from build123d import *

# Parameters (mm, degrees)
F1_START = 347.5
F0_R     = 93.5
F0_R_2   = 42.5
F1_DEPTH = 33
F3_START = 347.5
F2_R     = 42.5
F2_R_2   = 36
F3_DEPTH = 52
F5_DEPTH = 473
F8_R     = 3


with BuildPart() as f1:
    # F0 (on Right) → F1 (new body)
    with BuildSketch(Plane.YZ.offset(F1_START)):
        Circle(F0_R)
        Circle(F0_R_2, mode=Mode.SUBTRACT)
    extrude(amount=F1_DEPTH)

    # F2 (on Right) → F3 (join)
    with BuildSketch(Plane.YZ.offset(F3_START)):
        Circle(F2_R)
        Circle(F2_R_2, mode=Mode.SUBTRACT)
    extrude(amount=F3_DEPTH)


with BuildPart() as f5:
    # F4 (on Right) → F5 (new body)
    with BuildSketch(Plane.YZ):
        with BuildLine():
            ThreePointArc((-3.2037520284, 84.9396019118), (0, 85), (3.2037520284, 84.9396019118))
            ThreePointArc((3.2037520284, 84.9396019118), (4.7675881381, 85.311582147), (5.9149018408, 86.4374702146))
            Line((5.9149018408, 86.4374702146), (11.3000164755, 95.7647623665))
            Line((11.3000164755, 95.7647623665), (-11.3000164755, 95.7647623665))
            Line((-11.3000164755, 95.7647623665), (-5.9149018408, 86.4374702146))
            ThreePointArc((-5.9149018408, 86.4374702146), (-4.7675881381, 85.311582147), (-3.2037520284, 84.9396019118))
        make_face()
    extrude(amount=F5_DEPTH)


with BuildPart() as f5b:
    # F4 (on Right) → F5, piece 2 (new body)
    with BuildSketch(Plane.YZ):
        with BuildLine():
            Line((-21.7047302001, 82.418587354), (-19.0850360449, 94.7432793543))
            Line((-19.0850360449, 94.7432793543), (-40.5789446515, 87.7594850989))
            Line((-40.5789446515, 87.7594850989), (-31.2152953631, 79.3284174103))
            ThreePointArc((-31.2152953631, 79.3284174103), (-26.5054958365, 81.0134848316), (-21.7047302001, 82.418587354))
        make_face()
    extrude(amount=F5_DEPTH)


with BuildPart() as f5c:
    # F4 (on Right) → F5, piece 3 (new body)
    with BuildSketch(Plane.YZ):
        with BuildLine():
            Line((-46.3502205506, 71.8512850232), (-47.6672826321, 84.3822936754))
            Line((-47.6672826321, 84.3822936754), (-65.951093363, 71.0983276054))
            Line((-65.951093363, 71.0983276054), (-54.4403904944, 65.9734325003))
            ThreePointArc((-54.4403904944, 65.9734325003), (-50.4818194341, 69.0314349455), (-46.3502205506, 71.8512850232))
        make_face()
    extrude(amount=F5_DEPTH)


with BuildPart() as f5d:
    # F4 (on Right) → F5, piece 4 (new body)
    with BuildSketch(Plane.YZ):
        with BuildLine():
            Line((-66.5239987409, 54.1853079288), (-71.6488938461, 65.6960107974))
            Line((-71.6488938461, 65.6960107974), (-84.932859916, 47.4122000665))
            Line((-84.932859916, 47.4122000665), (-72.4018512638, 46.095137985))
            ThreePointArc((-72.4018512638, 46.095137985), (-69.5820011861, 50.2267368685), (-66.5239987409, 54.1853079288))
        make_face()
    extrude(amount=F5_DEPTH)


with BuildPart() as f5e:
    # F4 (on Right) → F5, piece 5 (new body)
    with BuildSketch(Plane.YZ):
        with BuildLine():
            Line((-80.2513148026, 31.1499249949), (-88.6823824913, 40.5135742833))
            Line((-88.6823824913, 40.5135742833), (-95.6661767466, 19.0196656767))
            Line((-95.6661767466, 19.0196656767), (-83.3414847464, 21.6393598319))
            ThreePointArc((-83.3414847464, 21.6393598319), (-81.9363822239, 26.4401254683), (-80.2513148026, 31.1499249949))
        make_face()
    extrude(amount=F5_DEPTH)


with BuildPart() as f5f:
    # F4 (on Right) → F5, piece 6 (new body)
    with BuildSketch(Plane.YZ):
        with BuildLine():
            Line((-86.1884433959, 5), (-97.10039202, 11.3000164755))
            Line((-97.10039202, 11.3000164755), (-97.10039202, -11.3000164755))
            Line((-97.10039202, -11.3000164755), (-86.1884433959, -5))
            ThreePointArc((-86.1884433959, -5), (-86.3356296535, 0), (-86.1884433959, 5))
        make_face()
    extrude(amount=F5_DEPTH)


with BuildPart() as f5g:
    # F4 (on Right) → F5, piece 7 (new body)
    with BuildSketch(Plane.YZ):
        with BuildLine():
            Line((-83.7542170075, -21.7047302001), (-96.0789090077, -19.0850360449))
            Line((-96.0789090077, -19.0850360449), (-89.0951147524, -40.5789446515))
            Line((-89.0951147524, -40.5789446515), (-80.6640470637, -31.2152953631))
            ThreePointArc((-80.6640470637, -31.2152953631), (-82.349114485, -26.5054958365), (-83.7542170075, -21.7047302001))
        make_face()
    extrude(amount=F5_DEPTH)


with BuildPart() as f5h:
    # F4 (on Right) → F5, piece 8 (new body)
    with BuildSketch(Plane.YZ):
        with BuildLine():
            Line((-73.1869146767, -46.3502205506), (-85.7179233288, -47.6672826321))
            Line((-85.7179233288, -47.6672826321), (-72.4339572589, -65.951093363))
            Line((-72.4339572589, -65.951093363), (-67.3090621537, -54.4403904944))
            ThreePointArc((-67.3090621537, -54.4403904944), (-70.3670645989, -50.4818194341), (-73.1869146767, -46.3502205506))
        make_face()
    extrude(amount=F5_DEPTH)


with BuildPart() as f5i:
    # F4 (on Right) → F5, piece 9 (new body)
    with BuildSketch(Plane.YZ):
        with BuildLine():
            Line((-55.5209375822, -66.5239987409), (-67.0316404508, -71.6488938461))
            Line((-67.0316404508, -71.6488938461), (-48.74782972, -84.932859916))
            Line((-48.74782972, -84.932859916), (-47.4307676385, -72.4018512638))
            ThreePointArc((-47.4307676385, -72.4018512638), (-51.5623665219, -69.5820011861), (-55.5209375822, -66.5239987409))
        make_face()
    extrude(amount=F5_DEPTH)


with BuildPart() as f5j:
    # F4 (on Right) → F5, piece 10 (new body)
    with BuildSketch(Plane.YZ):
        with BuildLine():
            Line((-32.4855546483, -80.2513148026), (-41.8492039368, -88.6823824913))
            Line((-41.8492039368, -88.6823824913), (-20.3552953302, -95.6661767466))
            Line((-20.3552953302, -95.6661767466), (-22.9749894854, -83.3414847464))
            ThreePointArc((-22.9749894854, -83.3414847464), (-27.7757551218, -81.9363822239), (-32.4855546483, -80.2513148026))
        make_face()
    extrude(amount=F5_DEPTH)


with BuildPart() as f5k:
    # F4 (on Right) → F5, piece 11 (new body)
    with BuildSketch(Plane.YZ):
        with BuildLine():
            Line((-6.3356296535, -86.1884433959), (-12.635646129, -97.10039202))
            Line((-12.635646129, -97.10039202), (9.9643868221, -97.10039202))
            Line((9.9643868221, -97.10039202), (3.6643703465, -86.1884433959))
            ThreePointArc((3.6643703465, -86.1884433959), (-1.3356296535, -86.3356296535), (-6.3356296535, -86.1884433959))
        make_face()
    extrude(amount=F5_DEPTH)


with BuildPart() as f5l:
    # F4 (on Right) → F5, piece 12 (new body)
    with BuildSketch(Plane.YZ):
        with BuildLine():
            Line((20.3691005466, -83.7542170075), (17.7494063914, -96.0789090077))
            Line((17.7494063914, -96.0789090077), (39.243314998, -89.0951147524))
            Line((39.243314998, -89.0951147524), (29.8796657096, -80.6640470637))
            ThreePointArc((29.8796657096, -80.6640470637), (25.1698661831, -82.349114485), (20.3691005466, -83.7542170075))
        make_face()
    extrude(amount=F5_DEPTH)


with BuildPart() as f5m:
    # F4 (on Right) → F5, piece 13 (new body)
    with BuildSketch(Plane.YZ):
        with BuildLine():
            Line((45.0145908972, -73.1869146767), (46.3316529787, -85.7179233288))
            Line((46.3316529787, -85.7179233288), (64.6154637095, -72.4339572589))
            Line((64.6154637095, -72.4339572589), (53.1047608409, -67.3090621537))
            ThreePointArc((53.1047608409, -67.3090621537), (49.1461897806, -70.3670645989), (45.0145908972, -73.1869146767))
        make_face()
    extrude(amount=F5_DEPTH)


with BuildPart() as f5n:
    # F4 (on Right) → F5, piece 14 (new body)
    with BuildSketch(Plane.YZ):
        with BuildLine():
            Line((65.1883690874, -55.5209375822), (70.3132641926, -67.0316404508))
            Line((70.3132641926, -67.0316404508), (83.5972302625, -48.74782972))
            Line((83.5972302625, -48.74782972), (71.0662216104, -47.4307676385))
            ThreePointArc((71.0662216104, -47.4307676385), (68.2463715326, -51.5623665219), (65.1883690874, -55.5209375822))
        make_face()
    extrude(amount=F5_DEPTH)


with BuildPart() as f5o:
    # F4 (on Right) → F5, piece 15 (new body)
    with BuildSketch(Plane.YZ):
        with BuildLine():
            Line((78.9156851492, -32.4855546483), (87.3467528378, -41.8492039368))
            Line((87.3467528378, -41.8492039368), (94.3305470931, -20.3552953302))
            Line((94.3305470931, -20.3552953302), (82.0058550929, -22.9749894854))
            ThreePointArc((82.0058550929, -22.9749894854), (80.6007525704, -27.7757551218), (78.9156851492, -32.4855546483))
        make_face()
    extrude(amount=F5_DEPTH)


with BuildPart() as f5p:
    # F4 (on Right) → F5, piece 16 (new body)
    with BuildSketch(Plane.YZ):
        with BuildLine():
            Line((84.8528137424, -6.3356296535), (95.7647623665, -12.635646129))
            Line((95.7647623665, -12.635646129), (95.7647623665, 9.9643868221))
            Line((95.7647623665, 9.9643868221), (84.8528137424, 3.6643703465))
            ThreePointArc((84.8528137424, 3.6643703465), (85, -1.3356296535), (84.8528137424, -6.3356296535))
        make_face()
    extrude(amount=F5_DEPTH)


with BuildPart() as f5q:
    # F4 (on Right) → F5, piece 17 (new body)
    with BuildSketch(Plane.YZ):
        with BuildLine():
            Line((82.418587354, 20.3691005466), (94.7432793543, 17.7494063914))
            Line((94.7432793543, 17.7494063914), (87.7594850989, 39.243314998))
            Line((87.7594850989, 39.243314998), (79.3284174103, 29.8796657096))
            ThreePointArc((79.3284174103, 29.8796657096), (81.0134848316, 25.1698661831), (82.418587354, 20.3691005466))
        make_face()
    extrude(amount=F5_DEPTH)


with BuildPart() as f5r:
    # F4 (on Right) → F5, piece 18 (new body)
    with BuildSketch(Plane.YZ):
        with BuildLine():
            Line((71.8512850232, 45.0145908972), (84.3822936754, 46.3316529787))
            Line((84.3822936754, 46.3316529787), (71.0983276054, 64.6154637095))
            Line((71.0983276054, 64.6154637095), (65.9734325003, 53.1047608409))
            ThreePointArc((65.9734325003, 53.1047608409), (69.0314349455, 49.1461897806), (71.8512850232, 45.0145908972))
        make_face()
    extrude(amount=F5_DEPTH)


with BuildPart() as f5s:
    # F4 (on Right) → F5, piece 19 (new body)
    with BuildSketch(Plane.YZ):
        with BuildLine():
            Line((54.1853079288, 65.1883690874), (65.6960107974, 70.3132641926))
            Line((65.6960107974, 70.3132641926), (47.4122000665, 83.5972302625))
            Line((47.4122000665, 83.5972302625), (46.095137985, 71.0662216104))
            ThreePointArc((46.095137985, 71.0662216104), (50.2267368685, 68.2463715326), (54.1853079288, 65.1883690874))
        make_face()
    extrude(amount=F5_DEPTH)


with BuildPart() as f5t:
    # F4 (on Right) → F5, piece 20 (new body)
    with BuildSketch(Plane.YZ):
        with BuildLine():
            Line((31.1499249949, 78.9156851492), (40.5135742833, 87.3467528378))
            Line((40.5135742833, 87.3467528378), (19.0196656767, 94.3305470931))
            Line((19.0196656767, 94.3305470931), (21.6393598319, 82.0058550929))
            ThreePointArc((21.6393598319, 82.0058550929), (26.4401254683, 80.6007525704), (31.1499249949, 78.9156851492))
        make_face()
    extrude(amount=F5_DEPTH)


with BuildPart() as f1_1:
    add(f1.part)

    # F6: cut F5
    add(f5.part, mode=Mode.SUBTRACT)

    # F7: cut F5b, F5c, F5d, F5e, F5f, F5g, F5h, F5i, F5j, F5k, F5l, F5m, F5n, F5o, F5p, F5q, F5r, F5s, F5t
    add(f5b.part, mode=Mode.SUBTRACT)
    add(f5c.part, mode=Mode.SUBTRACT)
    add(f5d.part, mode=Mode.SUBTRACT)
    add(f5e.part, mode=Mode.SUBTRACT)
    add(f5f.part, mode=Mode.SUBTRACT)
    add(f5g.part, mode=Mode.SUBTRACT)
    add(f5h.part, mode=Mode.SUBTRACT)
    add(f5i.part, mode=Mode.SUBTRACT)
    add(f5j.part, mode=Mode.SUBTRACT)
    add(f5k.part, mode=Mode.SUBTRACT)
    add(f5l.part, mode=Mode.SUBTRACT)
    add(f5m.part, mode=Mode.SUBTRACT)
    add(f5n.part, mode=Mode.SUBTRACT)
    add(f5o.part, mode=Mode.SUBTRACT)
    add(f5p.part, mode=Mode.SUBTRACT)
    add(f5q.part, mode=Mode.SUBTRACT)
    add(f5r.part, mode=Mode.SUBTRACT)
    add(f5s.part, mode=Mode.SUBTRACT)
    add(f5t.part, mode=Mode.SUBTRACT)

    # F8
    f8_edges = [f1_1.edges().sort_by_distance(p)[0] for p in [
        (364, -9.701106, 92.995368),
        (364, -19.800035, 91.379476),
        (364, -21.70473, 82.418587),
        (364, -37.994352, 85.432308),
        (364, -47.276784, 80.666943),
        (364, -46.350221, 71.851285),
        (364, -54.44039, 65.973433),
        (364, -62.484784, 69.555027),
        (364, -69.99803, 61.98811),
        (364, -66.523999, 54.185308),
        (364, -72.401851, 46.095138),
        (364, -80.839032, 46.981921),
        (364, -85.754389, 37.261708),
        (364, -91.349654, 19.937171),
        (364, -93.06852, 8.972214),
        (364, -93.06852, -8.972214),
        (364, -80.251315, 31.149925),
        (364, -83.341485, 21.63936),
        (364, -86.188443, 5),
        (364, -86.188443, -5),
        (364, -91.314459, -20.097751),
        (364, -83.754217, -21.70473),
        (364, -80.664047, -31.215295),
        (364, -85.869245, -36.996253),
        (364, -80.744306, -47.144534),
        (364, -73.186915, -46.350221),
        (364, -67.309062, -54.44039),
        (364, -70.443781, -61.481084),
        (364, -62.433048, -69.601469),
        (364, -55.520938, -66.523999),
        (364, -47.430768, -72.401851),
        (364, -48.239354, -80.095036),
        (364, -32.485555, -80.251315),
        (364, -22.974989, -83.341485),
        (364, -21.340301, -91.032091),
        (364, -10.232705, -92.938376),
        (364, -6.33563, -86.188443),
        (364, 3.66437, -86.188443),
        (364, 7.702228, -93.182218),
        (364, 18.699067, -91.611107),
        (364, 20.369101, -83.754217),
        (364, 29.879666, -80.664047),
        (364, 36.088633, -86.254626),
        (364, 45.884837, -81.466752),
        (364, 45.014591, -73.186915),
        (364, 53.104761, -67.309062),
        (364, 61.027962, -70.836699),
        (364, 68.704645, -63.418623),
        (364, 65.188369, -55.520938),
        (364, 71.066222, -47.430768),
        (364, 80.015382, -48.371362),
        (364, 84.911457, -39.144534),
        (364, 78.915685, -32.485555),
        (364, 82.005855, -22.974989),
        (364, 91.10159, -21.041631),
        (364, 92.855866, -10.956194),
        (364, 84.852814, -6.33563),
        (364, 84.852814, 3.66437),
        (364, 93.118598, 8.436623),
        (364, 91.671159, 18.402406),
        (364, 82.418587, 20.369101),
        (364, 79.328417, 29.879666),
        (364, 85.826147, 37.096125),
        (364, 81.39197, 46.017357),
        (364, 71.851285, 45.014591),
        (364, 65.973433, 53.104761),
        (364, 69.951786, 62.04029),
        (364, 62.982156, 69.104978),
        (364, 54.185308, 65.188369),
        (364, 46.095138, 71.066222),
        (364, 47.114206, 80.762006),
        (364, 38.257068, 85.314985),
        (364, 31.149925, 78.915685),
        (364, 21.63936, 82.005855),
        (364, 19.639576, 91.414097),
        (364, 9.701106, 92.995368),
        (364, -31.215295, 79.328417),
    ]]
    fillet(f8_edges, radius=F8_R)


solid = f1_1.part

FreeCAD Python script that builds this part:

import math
import FreeCAD as App
import Part
import Sketcher
Q = App.Units.Quantity


def edges_at(feature, points):
    """Names of the edges that pass closest to the given points."""
    edges = feature.Shape.Edges
    near = lambda p: min(range(len(edges)), key=lambda i: edges[i].distToShape(Part.Vertex(*p))[0])
    return sorted({f"Edge{near(p) + 1}" for p in points})

doc = App.newDocument("Part")
params = doc.addObject("Spreadsheet::Sheet", "Params")
for row, (alias, value) in enumerate([
    ("sketch1_diameter", "187 mm"),
    ("sketch1_diameter2", "85 mm"),
    ("pad1_length", "33 mm"),
    ("sketch2_diameter", "85 mm"),
    ("sketch2_diameter2", "72 mm"),
    ("pad2_length", "52 mm"),
    ("sketch3_radius", "85 mm"),
    ("sketch3_radius2", "3 mm"),
    ("pad3_length", "473 mm"),
    ("sketch4_radius", "85 mm"),
    ("pad4_length", "473 mm"),
    ("sketch5_radius", "85 mm"),
    ("pad5_length", "473 mm"),
    ("sketch6_radius", "85 mm"),
    ("pad6_length", "473 mm"),
    ("sketch7_radius", "85 mm"),
    ("pad7_length", "473 mm"),
    ("sketch8_radius", "85 mm"),
    ("pad8_length", "473 mm"),
    ("sketch9_radius", "85 mm"),
    ("pad9_length", "473 mm"),
    ("sketch10_radius", "85 mm"),
    ("pad10_length", "473 mm"),
    ("sketch11_radius", "85 mm"),
    ("pad11_length", "473 mm"),
    ("sketch12_radius", "85 mm"),
    ("pad12_length", "473 mm"),
    ("sketch13_radius", "85 mm"),
    ("pad13_length", "473 mm"),
    ("sketch14_radius", "85 mm"),
    ("pad14_length", "473 mm"),
    ("sketch15_radius", "85 mm"),
    ("pad15_length", "473 mm"),
    ("sketch16_radius", "85 mm"),
    ("pad16_length", "473 mm"),
    ("sketch17_radius", "85 mm"),
    ("pad17_length", "473 mm"),
    ("sketch18_radius", "85 mm"),
    ("pad18_length", "473 mm"),
    ("sketch19_radius", "85 mm"),
    ("pad19_length", "473 mm"),
    ("sketch20_radius", "85 mm"),
    ("pad20_length", "473 mm"),
    ("sketch21_radius", "85 mm"),
    ("pad21_length", "473 mm"),
    ("sketch22_radius", "85 mm"),
    ("pad22_length", "473 mm"),
    ("fillet_radius", "3 mm"),
], start=1):
    params.set(f"A{row}", alias)
    params.set(f"B{row}", "=" + value)
    params.setAlias(f"B{row}", alias)

body = doc.addObject("PartDesign::Body", "Body")

# Sketch on YZ plane
sketch1 = body.newObject("Sketcher::SketchObject", "Sketch")
sketch1.AttachmentSupport = (doc.getObject("YZ_Plane"), [""])
sketch1.MapMode = "FlatFace"
sketch1.AttachmentOffset = App.Placement(App.Vector(0, 0, 347.5), App.Rotation())
sketch1.addGeometry([
    Part.Circle(App.Vector(0, 0, 0), App.Vector(0, 0, 1), 93.5),
    Part.Circle(App.Vector(0, 0, 0), App.Vector(0, 0, 1), 42.5),
], False)
sketch1.addConstraint([
    Sketcher.Constraint("Coincident", 0, 3, -1, 1),
    Sketcher.Constraint("Coincident", 1, 3, -1, 1),
    Sketcher.Constraint("Diameter", 0, 187.0),
    Sketcher.Constraint("Diameter", 1, 85.0),
])
sketch1.setExpression("Constraints[2]", "Params.sketch1_diameter")
sketch1.setExpression("Constraints[3]", "Params.sketch1_diameter2")
pad1 = body.newObject("PartDesign::Pad", "Pad")
pad1.Profile = sketch1
pad1.setExpression("Length", "Params.pad1_length")

# Sketch on YZ plane
sketch2 = body.newObject("Sketcher::SketchObject", "Sketch001")
sketch2.AttachmentSupport = (doc.getObject("YZ_Plane"), [""])
sketch2.MapMode = "FlatFace"
sketch2.AttachmentOffset = App.Placement(App.Vector(0, 0, 347.5), App.Rotation())
sketch2.addGeometry([
    Part.Circle(App.Vector(0, 0, 0), App.Vector(0, 0, 1), 42.5),
    Part.Circle(App.Vector(0, 0, 0), App.Vector(0, 0, 1), 36),
], False)
sketch2.addConstraint([
    Sketcher.Constraint("Coincident", 0, 3, -1, 1),
    Sketcher.Constraint("Coincident", 1, 3, -1, 1),
    Sketcher.Constraint("Diameter", 0, 85.0),
    Sketcher.Constraint("Diameter", 1, 72.0),
])
sketch2.setExpression("Constraints[2]", "Params.sketch2_diameter")
sketch2.setExpression("Constraints[3]", "Params.sketch2_diameter2")
pad2 = body.newObject("PartDesign::Pad", "Pad001")
pad2.Profile = sketch2
pad2.setExpression("Length", "Params.pad2_length")
body2 = doc.addObject("PartDesign::Body", "Body001")

# Sketch on YZ plane
sketch3 = body2.newObject("Sketcher::SketchObject", "Sketch002")
sketch3.AttachmentSupport = (doc.getObject("YZ_Plane001"), [""])
sketch3.MapMode = "FlatFace"
sketch3.addGeometry([
    Part.ArcOfCircle(Part.Circle(App.Vector(0, 0, 0), App.Vector(0, 0, 1), 85), math.radians(87.839942), math.radians(92.160058)),  # 0
    Part.ArcOfCircle(Part.Circle(App.Vector(3.316826, 87.93747, 0), App.Vector(0, 0, 1), 3), math.radians(-92.160058), math.radians(-30)),  # 1
    Part.LineSegment(App.Vector(5.914902, 86.43747, 0), App.Vector(11.300016, 95.764762, 0)),  # 2
    Part.LineSegment(App.Vector(11.300016, 95.764762, 0), App.Vector(-11.300016, 95.764762, 0)),  # 3
    Part.LineSegment(App.Vector(-11.300016, 95.764762, 0), App.Vector(-5.914902, 86.43747, 0)),  # 4
    Part.ArcOfCircle(Part.Circle(App.Vector(-3.316826, 87.93747, 0), App.Vector(0, 0, 1), 3), math.radians(-150), math.radians(-87.839942)),  # 5
], False)
sketch3.addConstraint([
    Sketcher.Constraint("Tangent", 0, 1, 1, 1),
    Sketcher.Constraint("Tangent", 1, 2, 2, 1),
    Sketcher.Constraint("Coincident", 2, 2, 3, 1),
    Sketcher.Constraint("Coincident", 3, 2, 4, 1),
    Sketcher.Constraint("Tangent", 4, 2, 5, 1),
    Sketcher.Constraint("Tangent", 5, 2, 0, 2),
    Sketcher.Constraint("Horizontal", 3),
    Sketcher.Constraint("Coincident", 0, 3, -1, 1),
    Sketcher.Constraint("Equal", 1, 5),
    Sketcher.Constraint("Symmetric", 1, 2, 4, 2, -2),
    Sketcher.Constraint("Radius", 0, 85.0),
    Sketcher.Constraint("Radius", 1, 3.0),
    Sketcher.Constraint("Angle", 2, Q("60 deg")),
    Sketcher.Constraint("DistanceY", -1, 1, 0, 1, 84.939602),
    Sketcher.Constraint("Distance", 2, 10.770229),
])
sketch3.setExpression("Constraints[10]", "Params.sketch3_radius")
sketch3.setExpression("Constraints[11]", "Params.sketch3_radius2")
pad3 = body2.newObject("PartDesign::Pad", "Pad002")
pad3.Profile = sketch3
pad3.setExpression("Length", "Params.pad3_length")
body3 = doc.addObject("PartDesign::Body", "Body002")

# Sketch on YZ plane
sketch4 = body3.newObject("Sketcher::SketchObject", "Sketch003")
sketch4.AttachmentSupport = (doc.getObject("YZ_Plane002"), [""])
sketch4.MapMode = "FlatFace"
sketch4.addGeometry([
    Part.LineSegment(App.Vector(-21.70473, 82.418587, 0), App.Vector(-19.085036, 94.743279, 0)),
    Part.LineSegment(App.Vector(-19.085036, 94.743279, 0), App.Vector(-40.578945, 87.759485, 0)),
    Part.LineSegment(App.Vector(-40.578945, 87.759485, 0), App.Vector(-31.215295, 79.328417, 0)),
    Part.ArcOfCircle(Part.Circle(App.Vector(-0.239051, 0.173681, 0), App.Vector(0, 0, 1), 85), math.radians(104.627713), math.radians(111.372287)),
], False)
sketch4.addConstraint([
    Sketcher.Constraint("Coincident", 0, 2, 1, 1),
    Sketcher.Constraint("Coincident", 1, 2, 2, 1),
    Sketcher.Constraint("Coincident", 2, 2, 3, 2),
    Sketcher.Constraint("Coincident", 3, 1, 0, 1),
    Sketcher.Constraint("Equal", 0, 2),
    Sketcher.Constraint("Radius", 3, 85.0),
    Sketcher.Constraint("Angle", 0, Q("78 deg")),
    Sketcher.Constraint("Angle", 1, Q("-162 deg")),
    Sketcher.Constraint("Angle", 2, Q("-42 deg")),
    Sketcher.Constraint("DistanceY", 3, 3, 0, 2, 94.569598),
    Sketcher.Constraint("DistanceX", 3, 3, -1, 1, 0.239051),
    Sketcher.Constraint("DistanceY", -1, 1, 3, 3, 0.173681),
    Sketcher.Constraint("DistanceX", 3, 1, -1, 1, 21.70473),
])
sketch4.setExpression("Constraints[5]", "Params.sketch4_radius")
pad4 = body3.newObject("PartDesign::Pad", "Pad003")
pad4.Profile = sketch4
pad4.setExpression("Length", "Params.pad4_length")
body4 = doc.addObject("PartDesign::Body", "Body003")

# Sketch on YZ plane
sketch5 = body4.newObject("Sketcher::SketchObject", "Sketch004")
sketch5.AttachmentSupport = (doc.getObject("YZ_Plane003"), [""])
sketch5.MapMode = "FlatFace"
sketch5.addGeometry([
    Part.LineSegment(App.Vector(-46.350221, 71.851285, 0), App.Vector(-47.667283, 84.382294, 0)),
    Part.LineSegment(App.Vector(-47.667283, 84.382294, 0), App.Vector(-65.951093, 71.098328, 0)),
    Part.LineSegment(App.Vector(-65.951093, 71.098328, 0), App.Vector(-54.44039, 65.973433, 0)),
    Part.ArcOfCircle(Part.Circle(App.Vector(-0.520073, 0.26499, 0), App.Vector(0, 0, 1), 85), math.radians(122.627713), math.radians(129.372287)),
], False)
sketch5.addConstraint([
    Sketcher.Constraint("Coincident", 0, 2, 1, 1),
    Sketcher.Constraint("Coincident", 1, 2, 2, 1),
    Sketcher.Constraint("Coincident", 2, 2, 3, 2),
    Sketcher.Constraint("Coincident", 3, 1, 0, 1),
    Sketcher.Constraint("Equal", 0, 2),
    Sketcher.Constraint("Radius", 3, 85.0),
    Sketcher.Constraint("Angle", 0, Q("96 deg")),
    Sketcher.Constraint("Angle", 1, Q("-144 deg")),
    Sketcher.Constraint("Angle", 2, Q("-24 deg")),
    Sketcher.Constraint("DistanceY", -1, 1, 3, 3, 0.26499),
    Sketcher.Constraint("DistanceX", 2, 2, -1, 1, 54.44039),
    Sketcher.Constraint("DistanceX", 3, 1, -1, 1, 46.350221),
    Sketcher.Constraint("DistanceX", 0, 2, 3, 3, 47.14721),
])
sketch5.setExpression("Constraints[5]", "Params.sketch5_radius")
pad5 = body4.newObject("PartDesign::Pad", "Pad004")
pad5.Profile = sketch5
pad5.setExpression("Length", "Params.pad5_length")
body5 = doc.addObject("PartDesign::Body", "Body004")

# Sketch on YZ plane
sketch6 = body5.newObject("Sketcher::SketchObject", "Sketch005")
sketch6.AttachmentSupport = (doc.getObject("YZ_Plane004"), [""])
sketch6.MapMode = "FlatFace"
sketch6.addGeometry([
    Part.LineSegment(App.Vector(-66.523999, 54.185308, 0), App.Vector(-71.648894, 65.696011, 0)),
    Part.LineSegment(App.Vector(-71.648894, 65.696011, 0), App.Vector(-84.93286, 47.4122, 0)),
    Part.LineSegment(App.Vector(-84.93286, 47.4122, 0), App.Vector(-72.401851, 46.095138, 0)),
    Part.ArcOfCircle(Part.Circle(App.Vector(-0.815557, 0.26499, 0), App.Vector(0, 0, 1), 85), math.radians(140.627713), math.radians(147.372287)),
], False)
sketch6.addConstraint([
    Sketcher.Constraint("Coincident", 0, 2, 1, 1),
    Sketcher.Constraint("Coincident", 1, 2, 2, 1),
    Sketcher.Constraint("Coincident", 2, 2, 3, 2),
    Sketcher.Constraint("Coincident", 3, 1, 0, 1),
    Sketcher.Constraint("Equal", 0, 2),
    Sketcher.Constraint("Radius", 3, 85.0),
    Sketcher.Constraint("Angle", 0, Q("114 deg")),
    Sketcher.Constraint("Angle", 1, Q("-126 deg")),
    Sketcher.Constraint("Angle", 2, Q("-6 deg")),
    Sketcher.Constraint("DistanceX", 3, 1, -1, 1, 66.523999),
    Sketcher.Constraint("DistanceY", -1, 1, 1, 2, 47.4122),
    Sketcher.Constraint("DistanceY", -1, 1, 3, 3, 0.26499),
    Sketcher.Constraint("DistanceY", -1, 1, 0, 2, 65.696011),
])
sketch6.setExpression("Constraints[5]", "Params.sketch6_radius")
pad6 = body5.newObject("PartDesign::Pad", "Pad005")
pad6.Profile = sketch6
pad6.setExpression("Length", "Params.pad6_length")
body6 = doc.addObject("PartDesign::Body", "Body005")

# Sketch on YZ plane
sketch7 = body6.newObject("Sketcher::SketchObject", "Sketch006")
sketch7.AttachmentSupport = (doc.getObject("YZ_Plane005"), [""])
sketch7.MapMode = "FlatFace"
sketch7.addGeometry([
    Part.LineSegment(App.Vector(-80.251315, 31.149925, 0), App.Vector(-88.682382, 40.513574, 0)),
    Part.LineSegment(App.Vector(-88.682382, 40.513574, 0), App.Vector(-95.666177, 19.019666, 0)),
    Part.LineSegment(App.Vector(-95.666177, 19.019666, 0), App.Vector(-83.341485, 21.63936, 0)),
    Part.ArcOfCircle(Part.Circle(App.Vector(-1.096578, 0.173681, 0), App.Vector(0, 0, 1), 85), math.radians(158.627713), math.radians(165.372287)),
], False)
sketch7.addConstraint([
    Sketcher.Constraint("Coincident", 0, 2, 1, 1),
    Sketcher.Constraint("Coincident", 1, 2, 2, 1),
    Sketcher.Constraint("Coincident", 2, 2, 3, 2),
    Sketcher.Constraint("Coincident", 3, 1, 0, 1),
    Sketcher.Constraint("Equal", 0, 2),
    Sketcher.Constraint("Radius", 3, 85.0),
    Sketcher.Constraint("Angle", 0, Q("132 deg")),
    Sketcher.Constraint("Angle", 1, Q("-108 deg")),
    Sketcher.Constraint("Angle", 2, Q("12 deg")),
    Sketcher.Constraint("DistanceX", 1, 2, 3, 3, 94.569598),
    Sketcher.Constraint("DistanceX", 3, 3, -1, 1, 1.096578),
    Sketcher.Constraint("DistanceY", -1, 1, 3, 3, 0.173681),
    Sketcher.Constraint("DistanceY", -1, 1, 2, 2, 21.63936),
])
sketch7.setExpression("Constraints[5]", "Params.sketch7_radius")
pad7 = body6.newObject("PartDesign::Pad", "Pad006")
pad7.Profile = sketch7
pad7.setExpression("Length", "Params.pad7_length")
body7 = doc.addObject("PartDesign::Body", "Body006")

# Sketch on YZ plane
sketch8 = body7.newObject("Sketcher::SketchObject", "Sketch007")
sketch8.AttachmentSupport = (doc.getObject("YZ_Plane006"), [""])
sketch8.MapMode = "FlatFace"
sketch8.addGeometry([
    Part.LineSegment(App.Vector(-86.188443, 5, 0), App.Vector(-97.100392, 11.300016, 0)),
    Part.LineSegment(App.Vector(-97.100392, 11.300016, 0), App.Vector(-97.100392, -11.300016, 0)),
    Part.LineSegment(App.Vector(-97.100392, -11.300016, 0), App.Vector(-86.188443, -5, 0)),
    Part.ArcOfCircle(Part.Circle(App.Vector(-1.33563, 0, 0), App.Vector(0, 0, 1), 85), math.radians(176.627713), math.radians(183.372287)),
], False)
sketch8.addConstraint([
    Sketcher.Constraint("Coincident", 0, 2, 1, 1),
    Sketcher.Constraint("Coincident", 1, 2, 2, 1),
    Sketcher.Constraint("Coincident", 2, 2, 3, 2),
    Sketcher.Constraint("Coincident", 3, 1, 0, 1),
    Sketcher.Constraint("Vertical", 1),
    Sketcher.Constraint("Symmetric", 2, 2, 3, 1, -1),
    Sketcher.Constraint("Equal", 0, 2),
    Sketcher.Constraint("Radius", 3, 85.0),
    Sketcher.Constraint("Angle", 0, Q("150 deg")),
    Sketcher.Constraint("DistanceY", 2, 2, -1, 1, 5.0),
    Sketcher.Constraint("DistanceY", 1, 2, 1, 1, 22.600033),
    Sketcher.Constraint("DistanceX", 3, 3, -1, 1, 1.33563),
])
sketch8.setExpression("Constraints[7]", "Params.sketch8_radius")
pad8 = body7.newObject("PartDesign::Pad", "Pad007")
pad8.Profile = sketch8
pad8.setExpression("Length", "Params.pad8_length")
body8 = doc.addObject("PartDesign::Body", "Body007")

# Sketch on YZ plane
sketch9 = body8.newObject("Sketcher::SketchObject", "Sketch008")
sketch9.AttachmentSupport = (doc.getObject("YZ_Plane007"), [""])
sketch9.MapMode = "FlatFace"
sketch9.addGeometry([
    Part.LineSegment(App.Vector(-83.754217, -21.70473, 0), App.Vector(-96.078909, -19.085036, 0)),
    Part.LineSegment(App.Vector(-96.078909, -19.085036, 0), App.Vector(-89.095115, -40.578945, 0)),
    Part.LineSegment(App.Vector(-89.095115, -40.578945, 0), App.Vector(-80.664047, -31.215295, 0)),
    Part.ArcOfCircle(Part.Circle(App.Vector(-1.509311, -0.239051, 0), App.Vector(0, 0, 1), 85), math.radians(-165.372287), math.radians(-158.627713)),
], False)
sketch9.addConstraint([
    Sketcher.Constraint("Coincident", 0, 2, 1, 1),
    Sketcher.Constraint("Coincident", 1, 2, 2, 1),
    Sketcher.Constraint("Coincident", 2, 2, 3, 2),
    Sketcher.Constraint("Coincident", 3, 1, 0, 1),
    Sketcher.Constraint("Equal", 0, 2),
    Sketcher.Constraint("Radius", 3, 85.0),
    Sketcher.Constraint("Angle", 0, Q("168 deg")),
    Sketcher.Constraint("Angle", 1, Q("-72 deg")),
    Sketcher.Constraint("Angle", 2, Q("48 deg")),
    Sketcher.Constraint("DistanceX", 0, 2, 3, 3, 94.569598),
    Sketcher.Constraint("DistanceX", 3, 3, -1, 1, 1.509311),
    Sketcher.Constraint("DistanceY", 3, 3, -1, 1, 0.239051),
    Sketcher.Constraint("DistanceY", 3, 1, -1, 1, 21.70473),
])
sketch9.setExpression("Constraints[5]", "Params.sketch9_radius")
pad9 = body8.newObject("PartDesign::Pad", "Pad008")
pad9.Profile = sketch9
pad9.setExpression("Length", "Params.pad9_length")
body9 = doc.addObject("PartDesign::Body", "Body008")

# Sketch on YZ plane
sketch10 = body9.newObject("Sketcher::SketchObject", "Sketch009")
sketch10.AttachmentSupport = (doc.getObject("YZ_Plane008"), [""])
sketch10.MapMode = "FlatFace"
sketch10.addGeometry([
    Part.LineSegment(App.Vector(-73.186915, -46.350221, 0), App.Vector(-85.717923, -47.667283, 0)),
    Part.LineSegment(App.Vector(-85.717923, -47.667283, 0), App.Vector(-72.433957, -65.951093, 0)),
    Part.LineSegment(App.Vector(-72.433957, -65.951093, 0), App.Vector(-67.309062, -54.44039, 0)),
    Part.ArcOfCircle(Part.Circle(App.Vector(-1.60062, -0.520073, 0), App.Vector(0, 0, 1), 85), math.radians(-147.372287), math.radians(-140.627713)),
], False)
sketch10.addConstraint([
    Sketcher.Constraint("Coincident", 0, 2, 1, 1),
    Sketcher.Constraint("Coincident", 1, 2, 2, 1),
    Sketcher.Constraint("Coincident", 2, 2, 3, 2),
    Sketcher.Constraint("Coincident", 3, 1, 0, 1),
    Sketcher.Constraint("Equal", 0, 2),
    Sketcher.Constraint("Radius", 3, 85.0),
    Sketcher.Constraint("Angle", 0, Q("-174 deg")),
    Sketcher.Constraint("Angle", 1, Q("-54 deg")),
    Sketcher.Constraint("Angle", 2, Q("66 deg")),
    Sketcher.Constraint("DistanceX", 3, 3, -1, 1, 1.60062),
    Sketcher.Constraint("DistanceY", 2, 2, -1, 1, 54.44039),
    Sketcher.Constraint("DistanceY", 3, 1, -1, 1, 46.350221),
    Sketcher.Constraint("DistanceY", 0, 2, 3, 3, 47.14721),
])
sketch10.setExpression("Constraints[5]", "Params.sketch10_radius")
pad10 = body9.newObject("PartDesign::Pad", "Pad009")
pad10.Profile = sketch10
pad10.setExpression("Length", "Params.pad10_length")
body10 = doc.addObject("PartDesign::Body", "Body009")

# Sketch on YZ plane
sketch11 = body10.newObject("Sketcher::SketchObject", "Sketch010")
sketch11.AttachmentSupport = (doc.getObject("YZ_Plane009"), [""])
sketch11.MapMode = "FlatFace"
sketch11.addGeometry([
    Part.LineSegment(App.Vector(-55.520938, -66.523999, 0), App.Vector(-67.03164, -71.648894, 0)),
    Part.LineSegment(App.Vector(-67.03164, -71.648894, 0), App.Vector(-48.74783, -84.93286, 0)),
    Part.LineSegment(App.Vector(-48.74783, -84.93286, 0), App.Vector(-47.430768, -72.401851, 0)),
    Part.ArcOfCircle(Part.Circle(App.Vector(-1.60062, -0.815557, 0), App.Vector(0, 0, 1), 85), math.radians(-129.372287), math.radians(-122.627713)),
], False)
sketch11.addConstraint([
    Sketcher.Constraint("Coincident", 0, 2, 1, 1),
    Sketcher.Constraint("Coincident", 1, 2, 2, 1),
    Sketcher.Constraint("Coincident", 2, 2, 3, 2),
    Sketcher.Constraint("Coincident", 3, 1, 0, 1),
    Sketcher.Constraint("Equal", 0, 2),
    Sketcher.Constraint("Radius", 3, 85.0),
    Sketcher.Constraint("Angle", 0, Q("-156 deg")),
    Sketcher.Constraint("Angle", 1, Q("-36 deg")),
    Sketcher.Constraint("Angle", 2, Q("84 deg")),
    Sketcher.Constraint("DistanceY", 3, 1, -1, 1, 66.523999),
    Sketcher.Constraint("DistanceX", 3, 3, -1, 1, 1.60062),
    Sketcher.Constraint("DistanceX", 0, 2, -1, 1, 67.03164),
    Sketcher.Constraint("DistanceX", 1, 2, -1, 1, 48.74783),
])
sketch11.setExpression("Constraints[5]", "Params.sketch11_radius")
pad11 = body10.newObject("PartDesign::Pad", "Pad010")
pad11.Profile = sketch11
pad11.setExpression("Length", "Params.pad11_length")
body11 = doc.addObject("PartDesign::Body", "Body010")

# Sketch on YZ plane
sketch12 = body11.newObject("Sketcher::SketchObject", "Sketch011")
sketch12.AttachmentSupport = (doc.getObject("YZ_Plane010"), [""])
sketch12.MapMode = "FlatFace"
sketch12.addGeometry([
    Part.LineSegment(App.Vector(-32.485555, -80.251315, 0), App.Vector(-41.849204, -88.682382, 0)),
    Part.LineSegment(App.Vector(-41.849204, -88.682382, 0), App.Vector(-20.355295, -95.666177, 0)),
    Part.LineSegment(App.Vector(-20.355295, -95.666177, 0), App.Vector(-22.974989, -83.341485, 0)),
    Part.ArcOfCircle(Part.Circle(App.Vector(-1.509311, -1.096578, 0), App.Vector(0, 0, 1), 85), math.radians(-111.372287), math.radians(-104.627713)),
], False)
sketch12.addConstraint([
    Sketcher.Constraint("Coincident", 0, 2, 1, 1),
    Sketcher.Constraint("Coincident", 1, 2, 2, 1),
    Sketcher.Constraint("Coincident", 2, 2, 3, 2),
    Sketcher.Constraint("Coincident", 3, 1, 0, 1),
    Sketcher.Constraint("Equal", 0, 2),
    Sketcher.Constraint("Radius", 3, 85.0),
    Sketcher.Constraint("Angle", 0, Q("-138 deg")),
    Sketcher.Constraint("Angle", 1, Q("-18 deg")),
    Sketcher.Constraint("Angle", 2, Q("102 deg")),
    Sketcher.Constraint("DistanceY", 1, 2, 3, 3, 94.569598),
    Sketcher.Constraint("DistanceX", 3, 3, -1, 1, 1.509311),
    Sketcher.Constraint("DistanceY", 3, 3, -1, 1, 1.096578),
    Sketcher.Constraint("DistanceX", 2, 2, -1, 1, 22.974989),
])
sketch12.setExpression("Constraints[5]", "Params.sketch12_radius")
pad12 = body11.newObject("PartDesign::Pad", "Pad011")
pad12.Profile = sketch12
pad12.setExpression("Length", "Params.pad12_length")
body12 = doc.addObject("PartDesign::Body", "Body011")

# Sketch on YZ plane
sketch13 = body12.newObject("Sketcher::SketchObject", "Sketch012")
sketch13.AttachmentSupport = (doc.getObject("YZ_Plane011"), [""])
sketch13.MapMode = "FlatFace"
sketch13.addGeometry([
    Part.LineSegment(App.Vector(-6.33563, -86.188443, 0), App.Vector(-12.635646, -97.100392, 0)),
    Part.LineSegment(App.Vector(-12.635646, -97.100392, 0), App.Vector(9.964387, -97.100392, 0)),
    Part.LineSegment(App.Vector(9.964387, -97.100392, 0), App.Vector(3.66437, -86.188443, 0)),
    Part.ArcOfCircle(Part.Circle(App.Vector(-1.33563, -1.33563, 0), App.Vector(0, 0, 1), 85), math.radians(-93.372287), math.radians(-86.627713)),
], False)
sketch13.addConstraint([
    Sketcher.Constraint("Coincident", 0, 2, 1, 1),
    Sketcher.Constraint("Coincident", 1, 2, 2, 1),
    Sketcher.Constraint("Coincident", 2, 2, 3, 2),
    Sketcher.Constraint("Coincident", 3, 1, 0, 1),
    Sketcher.Constraint("Horizontal", 1),
    Sketcher.Constraint("Horizontal", 2, 2, 3, 1),
    Sketcher.Constraint("Equal", 0, 2),
    Sketcher.Constraint("Radius", 3, 85.0),
    Sketcher.Constraint("Angle", 0, Q("-120 deg")),
    Sketcher.Constraint("DistanceX", 3, 3, 2, 2, 5.0),
    Sketcher.Constraint("DistanceX", 1, 1, 1, 2, 22.600033),
    Sketcher.Constraint("DistanceX", 3, 3, -1, 1, 1.33563),
    Sketcher.Constraint("DistanceY", 3, 3, -1, 1, 1.33563),
])
sketch13.setExpression("Constraints[7]", "Params.sketch13_radius")
pad13 = body12.newObject("PartDesign::Pad", "Pad012")
pad13.Profile = sketch13
pad13.setExpression("Length", "Params.pad13_length")
body13 = doc.addObject("PartDesign::Body", "Body012")

# Sketch on YZ plane
sketch14 = body13.newObject("Sketcher::SketchObject", "Sketch013")
sketch14.AttachmentSupport = (doc.getObject("YZ_Plane012"), [""])
sketch14.MapMode = "FlatFace"
sketch14.addGeometry([
    Part.LineSegment(App.Vector(20.369101, -83.754217, 0), App.Vector(17.749406, -96.078909, 0)),
    Part.LineSegment(App.Vector(17.749406, -96.078909, 0), App.Vector(39.243315, -89.095115, 0)),
    Part.LineSegment(App.Vector(39.243315, -89.095115, 0), App.Vector(29.879666, -80.664047, 0)),
    Part.ArcOfCircle(Part.Circle(App.Vector(-1.096578, -1.509311, 0), App.Vector(0, 0, 1), 85), math.radians(-75.372287), math.radians(-68.627713)),
], False)
sketch14.addConstraint([
    Sketcher.Constraint("Coincident", 0, 2, 1, 1),
    Sketcher.Constraint("Coincident", 1, 2, 2, 1),
    Sketcher.Constraint("Coincident", 2, 2, 3, 2),
    Sketcher.Constraint("Coincident", 3, 1, 0, 1),
    Sketcher.Constraint("Equal", 0, 2),
    Sketcher.Constraint("Radius", 3, 85.0),
    Sketcher.Constraint("Angle", 0, Q("-102 deg")),
    Sketcher.Constraint("Angle", 1, Q("18 deg")),
    Sketcher.Constraint("Angle", 2, Q("138 deg")),
    Sketcher.Constraint("DistanceX", -1, 1, 3, 1, 20.369101),
    Sketcher.Constraint("DistanceY", 0, 2, 3, 3, 94.569598),
    Sketcher.Constraint("DistanceX", 3, 3, -1, 1, 1.096578),
    Sketcher.Constraint("DistanceY", 3, 3, -1, 1, 1.509311),
])
sketch14.setExpression("Constraints[5]", "Params.sketch14_radius")
pad14 = body13.newObject("PartDesign::Pad", "Pad013")
pad14.Profile = sketch14
pad14.setExpression("Length", "Params.pad14_length")
body14 = doc.addObject("PartDesign::Body", "Body013")

# Sketch on YZ plane
sketch15 = body14.newObject("Sketcher::SketchObject", "Sketch014")
sketch15.AttachmentSupport = (doc.getObject("YZ_Plane013"), [""])
sketch15.MapMode = "FlatFace"
sketch15.addGeometry([
    Part.LineSegment(App.Vector(45.014591, -73.186915, 0), App.Vector(46.331653, -85.717923, 0)),
    Part.LineSegment(App.Vector(46.331653, -85.717923, 0), App.Vector(64.615464, -72.433957, 0)),
    Part.LineSegment(App.Vector(64.615464, -72.433957, 0), App.Vector(53.104761, -67.309062, 0)),
    Part.ArcOfCircle(Part.Circle(App.Vector(-0.815557, -1.60062, 0), App.Vector(0, 0, 1), 85), math.radians(-57.372287), math.radians(-50.627713)),
], False)
sketch15.addConstraint([
    Sketcher.Constraint("Coincident", 0, 2, 1, 1),
    Sketcher.Constraint("Coincident", 1, 2, 2, 1),
    Sketcher.Constraint("Coincident", 2, 2, 3, 2),
    Sketcher.Constraint("Coincident", 3, 1, 0, 1),
    Sketcher.Constraint("Equal", 0, 2),
    Sketcher.Constraint("Radius", 3, 85.0),
    Sketcher.Constraint("Angle", 0, Q("-84 deg")),
    Sketcher.Constraint("Angle", 1, Q("36 deg")),
    Sketcher.Constraint("Angle", 2, Q("156 deg")),
    Sketcher.Constraint("DistanceY", 3, 3, -1, 1, 1.60062),
    Sketcher.Constraint("DistanceX", -1, 1, 2, 2, 53.104761),
    Sketcher.Constraint("DistanceX", -1, 1, 3, 1, 45.014591),
    Sketcher.Constraint("DistanceX", 3, 3, 0, 2, 47.14721),
])
sketch15.setExpression("Constraints[5]", "Params.sketch15_radius")
pad15 = body14.newObject("PartDesign::Pad", "Pad014")
pad15.Profile = sketch15
pad15.setExpression("Length", "Params.pad15_length")
body15 = doc.addObject("PartDesign::Body", "Body014")

# Sketch on YZ plane
sketch16 = body15.newObject("Sketcher::SketchObject", "Sketch015")
sketch16.AttachmentSupport = (doc.getObject("YZ_Plane014"), [""])
sketch16.MapMode = "FlatFace"
sketch16.addGeometry([
    Part.LineSegment(App.Vector(65.188369, -55.520938, 0), App.Vector(70.313264, -67.03164, 0)),
    Part.LineSegment(App.Vector(70.313264, -67.03164, 0), App.Vector(83.59723, -48.74783, 0)),
    Part.LineSegment(App.Vector(83.59723, -48.74783, 0), App.Vector(71.066222, -47.430768, 0)),
    Part.ArcOfCircle(Part.Circle(App.Vector(-0.520073, -1.60062, 0), App.Vector(0, 0, 1), 85), math.radians(-39.372287), math.radians(-32.627713)),
], False)
sketch16.addConstraint([
    Sketcher.Constraint("Coincident", 0, 2, 1, 1),
    Sketcher.Constraint("Coincident", 1, 2, 2, 1),
    Sketcher.Constraint("Coincident", 2, 2, 3, 2),
    Sketcher.Constraint("Coincident", 3, 1, 0, 1),
    Sketcher.Constraint("Equal", 0, 2),
    Sketcher.Constraint("Radius", 3, 85.0),
    Sketcher.Constraint("Angle", 0, Q("-66 deg")),
    Sketcher.Constraint("Angle", 1, Q("54 deg")),
    Sketcher.Constraint("Angle", 2, Q("174 deg")),
    Sketcher.Constraint("DistanceY", 3, 3, -1, 1, 1.60062),
    Sketcher.Constraint("DistanceY", 0, 2, -1, 1, 67.03164),
    Sketcher.Constraint("DistanceX", -1, 1, 1, 2, 83.59723),
    Sketcher.Constraint("DistanceY", 1, 2, -1, 1, 48.74783),
])
sketch16.setExpression("Constraints[5]", "Params.sketch16_radius")
pad16 = body15.newObject("PartDesign::Pad", "Pad015")
pad16.Profile = sketch16
pad16.setExpression("Length", "Params.pad16_length")
body16 = doc.addObject("PartDesign::Body", "Body015")

# Sketch on YZ plane
sketch17 = body16.newObject("Sketcher::SketchObject", "Sketch016")
sketch17.AttachmentSupport = (doc.getObject("YZ_Plane015"), [""])
sketch17.MapMode = "FlatFace"
sketch17.addGeometry([
    Part.LineSegment(App.Vector(78.915685, -32.485555, 0), App.Vector(87.346753, -41.849204, 0)),
    Part.LineSegment(App.Vector(87.346753, -41.849204, 0), App.Vector(94.330547, -20.355295, 0)),
    Part.LineSegment(App.Vector(94.330547, -20.355295, 0), App.Vector(82.005855, -22.974989, 0)),
    Part.ArcOfCircle(Part.Circle(App.Vector(-0.239051, -1.509311, 0), App.Vector(0, 0, 1), 85), math.radians(-21.372287), math.radians(-14.627713)),
], False)
sketch17.addConstraint([
    Sketcher.Constraint("Coincident", 0, 2, 1, 1),
    Sketcher.Constraint("Coincident", 1, 2, 2, 1),
    Sketcher.Constraint("Coincident", 2, 2, 3, 2),
    Sketcher.Constraint("Coincident", 3, 1, 0, 1),
    Sketcher.Constraint("Equal", 0, 2),
    Sketcher.Constraint("Radius", 3, 85.0),
    Sketcher.Constraint("Angle", 0, Q("-48 deg")),
    Sketcher.Constraint("Angle", 1, Q("72 deg")),
    Sketcher.Constraint("Angle", 2, Q("-168 deg")),
    Sketcher.Constraint("DistanceX", 3, 3, 1, 2, 94.569598),
    Sketcher.Constraint("DistanceX", 3, 3, -1, 1, 0.239051),
    Sketcher.Constraint("DistanceY", 3, 3, -1, 1, 1.509311),
    Sketcher.Constraint("DistanceY", 2, 2, -1, 1, 22.974989),
])
sketch17.setExpression("Constraints[5]", "Params.sketch17_radius")
pad17 = body16.newObject("PartDesign::Pad", "Pad016")
pad17.Profile = sketch17
pad17.setExpression("Length", "Params.pad17_length")
body17 = doc.addObject("PartDesign::Body", "Body016")

# Sketch on YZ plane
sketch18 = body17.newObject("Sketcher::SketchObject", "Sketch017")
sketch18.AttachmentSupport = (doc.getObject("YZ_Plane016"), [""])
sketch18.MapMode = "FlatFace"
sketch18.addGeometry([
    Part.LineSegment(App.Vector(84.852814, -6.33563, 0), App.Vector(95.764762, -12.635646, 0)),
    Part.LineSegment(App.Vector(95.764762, -12.635646, 0), App.Vector(95.764762, 9.964387, 0)),
    Part.LineSegment(App.Vector(95.764762, 9.964387, 0), App.Vector(84.852814, 3.66437, 0)),
    Part.ArcOfCircle(Part.Circle(App.Vector(0, -1.33563, 0), App.Vector(0, 0, 1), 85), math.radians(-3.372287), math.radians(3.372287)),
], False)
sketch18.addConstraint([
    Sketcher.Constraint("Coincident", 0, 2, 1, 1),
    Sketcher.Constraint("Coincident", 1, 2, 2, 1),
    Sketcher.Constraint("Coincident", 2, 2, 3, 2),
    Sketcher.Constraint("Coincident", 3, 1, 0, 1),
    Sketcher.Constraint("Vertical", 1),
    Sketcher.Constraint("PointOnObject", 3, 3, -2),
    Sketcher.Constraint("Vertical", 2, 2, 3, 1),
    Sketcher.Constraint("Equal", 0, 2),
    Sketcher.Constraint("Radius", 3, 85.0),
    Sketcher.Constraint("Angle", 0, Q("-30 deg")),
    Sketcher.Constraint("DistanceY", 3, 3, 2, 2, 5.0),
    Sketcher.Constraint("DistanceY", 1, 1, 1, 2, 22.600033),
    Sketcher.Constraint("DistanceY", 3, 3, -1, 1, 1.33563),
])
sketch18.setExpression("Constraints[8]", "Params.sketch18_radius")
pad18 = body17.newObject("PartDesign::Pad", "Pad017")
pad18.Profile = sketch18
pad18.setExpression("Length", "Params.pad18_length")
body18 = doc.addObject("PartDesign::Body", "Body017")

# Sketch on YZ plane
sketch19 = body18.newObject("Sketcher::SketchObject", "Sketch018")
sketch19.AttachmentSupport = (doc.getObject("YZ_Plane017"), [""])
sketch19.MapMode = "FlatFace"
sketch19.addGeometry([
    Part.LineSegment(App.Vector(82.418587, 20.369101, 0), App.Vector(94.743279, 17.749406, 0)),
    Part.LineSegment(App.Vector(94.743279, 17.749406, 0), App.Vector(87.759485, 39.243315, 0)),
    Part.LineSegment(App.Vector(87.759485, 39.243315, 0), App.Vector(79.328417, 29.879666, 0)),
    Part.ArcOfCircle(Part.Circle(App.Vector(0.173681, -1.096578, 0), App.Vector(0, 0, 1), 85), math.radians(14.627713), math.radians(21.372287)),
], False)
sketch19.addConstraint([
    Sketcher.Constraint("Coincident", 0, 2, 1, 1),
    Sketcher.Constraint("Coincident", 1, 2, 2, 1),
    Sketcher.Constraint("Coincident", 2, 2, 3, 2),
    Sketcher.Constraint("Coincident", 3, 1, 0, 1),
    Sketcher.Constraint("Equal", 0, 2),
    Sketcher.Constraint("Radius", 3, 85.0),
    Sketcher.Constraint("Angle", 0, Q("-12 deg")),
    Sketcher.Constraint("Angle", 1, Q("108 deg")),
    Sketcher.Constraint("Angle", 2, Q("-132 deg")),
    Sketcher.Constraint("DistanceY", -1, 1, 3, 1, 20.369101),
    Sketcher.Constraint("DistanceX", 3, 3, 0, 2, 94.569598),
    Sketcher.Constraint("DistanceX", -1, 1, 3, 3, 0.173681),
    Sketcher.Constraint("DistanceY", 3, 3, -1, 1, 1.096578),
])
sketch19.setExpression("Constraints[5]", "Params.sketch19_radius")
pad19 = body18.newObject("PartDesign::Pad", "Pad018")
pad19.Profile = sketch19
pad19.setExpression("Length", "Params.pad19_length")
body19 = doc.addObject("PartDesign::Body", "Body018")

# Sketch on YZ plane
sketch20 = body19.newObject("Sketcher::SketchObject", "Sketch019")
sketch20.AttachmentSupport = (doc.getObject("YZ_Plane018"), [""])
sketch20.MapMode = "FlatFace"
sketch20.addGeometry([
    Part.LineSegment(App.Vector(71.851285, 45.014591, 0), App.Vector(84.382294, 46.331653, 0)),
    Part.LineSegment(App.Vector(84.382294, 46.331653, 0), App.Vector(71.098328, 64.615464, 0)),
    Part.LineSegment(App.Vector(71.098328, 64.615464, 0), App.Vector(65.973433, 53.104761, 0)),
    Part.ArcOfCircle(Part.Circle(App.Vector(0.26499, -0.815557, 0), App.Vector(0, 0, 1), 85), math.radians(32.627713), math.radians(39.372287)),
], False)
sketch20.addConstraint([
    Sketcher.Constraint("Coincident", 0, 2, 1, 1),
    Sketcher.Constraint("Coincident", 1, 2, 2, 1),
    Sketcher.Constraint("Coincident", 2, 2, 3, 2),
    Sketcher.Constraint("Coincident", 3, 1, 0, 1),
    Sketcher.Constraint("Equal", 0, 2),
    Sketcher.Constraint("Radius", 3, 85.0),
    Sketcher.Constraint("Angle", 0, Q("6 deg")),
    Sketcher.Constraint("Angle", 1, Q("126 deg")),
    Sketcher.Constraint("Angle", 2, Q("-114 deg")),
    Sketcher.Constraint("DistanceX", -1, 1, 3, 3, 0.26499),
    Sketcher.Constraint("DistanceY", -1, 1, 2, 2, 53.104761),
    Sketcher.Constraint("DistanceY", -1, 1, 3, 1, 45.014591),
    Sketcher.Constraint("DistanceY", 3, 3, 0, 2, 47.14721),
])
sketch20.setExpression("Constraints[5]", "Params.sketch20_radius")
pad20 = body19.newObject("PartDesign::Pad", "Pad019")
pad20.Profile = sketch20
pad20.setExpression("Length", "Params.pad20_length")
body20 = doc.addObject("PartDesign::Body", "Body019")

# Sketch on YZ plane
sketch21 = body20.newObject("Sketcher::SketchObject", "Sketch020")
sketch21.AttachmentSupport = (doc.getObject("YZ_Plane019"), [""])
sketch21.MapMode = "FlatFace"
sketch21.addGeometry([
    Part.LineSegment(App.Vector(54.185308, 65.188369, 0), App.Vector(65.696011, 70.313264, 0)),
    Part.LineSegment(App.Vector(65.696011, 70.313264, 0), App.Vector(47.4122, 83.59723, 0)),
    Part.LineSegment(App.Vector(47.4122, 83.59723, 0), App.Vector(46.095138, 71.066222, 0)),
    Part.ArcOfCircle(Part.Circle(App.Vector(0.26499, -0.520073, 0), App.Vector(0, 0, 1), 85), math.radians(50.627713), math.radians(57.372287)),
], False)
sketch21.addConstraint([
    Sketcher.Constraint("Coincident", 0, 2, 1, 1),
    Sketcher.Constraint("Coincident", 1, 2, 2, 1),
    Sketcher.Constraint("Coincident", 2, 2, 3, 2),
    Sketcher.Constraint("Coincident", 3, 1, 0, 1),
    Sketcher.Constraint("Equal", 0, 2),
    Sketcher.Constraint("Radius", 3, 85.0),
    Sketcher.Constraint("Angle", 0, Q("24 deg")),
    Sketcher.Constraint("Angle", 1, Q("144 deg")),
    Sketcher.Constraint("Angle", 2, Q("-96 deg")),
    Sketcher.Constraint("DistanceX", -1, 1, 1, 2, 47.4122),
    Sketcher.Constraint("DistanceX", -1, 1, 3, 3, 0.26499),
    Sketcher.Constraint("DistanceX", -1, 1, 0, 2, 65.696011),
    Sketcher.Constraint("DistanceY", -1, 1, 1, 2, 83.59723),
])
sketch21.setExpression("Constraints[5]", "Params.sketch21_radius")
pad21 = body20.newObject("PartDesign::Pad", "Pad020")
pad21.Profile = sketch21
pad21.setExpression("Length", "Params.pad21_length")
body21 = doc.addObject("PartDesign::Body", "Body020")

# Sketch on YZ plane
sketch22 = body21.newObject("Sketcher::SketchObject", "Sketch021")
sketch22.AttachmentSupport = (doc.getObject("YZ_Plane020"), [""])
sketch22.MapMode = "FlatFace"
sketch22.addGeometry([
    Part.LineSegment(App.Vector(31.149925, 78.915685, 0), App.Vector(40.513574, 87.346753, 0)),
    Part.LineSegment(App.Vector(40.513574, 87.346753, 0), App.Vector(19.019666, 94.330547, 0)),
    Part.LineSegment(App.Vector(19.019666, 94.330547, 0), App.Vector(21.63936, 82.005855, 0)),
    Part.ArcOfCircle(Part.Circle(App.Vector(0.173681, -0.239051, 0), App.Vector(0, 0, 1), 85), math.radians(68.627713), math.radians(75.372287)),
], False)
sketch22.addConstraint([
    Sketcher.Constraint("Coincident", 0, 2, 1, 1),
    Sketcher.Constraint("Coincident", 1, 2, 2, 1),
    Sketcher.Constraint("Coincident", 2, 2, 3, 2),
    Sketcher.Constraint("Coincident", 3, 1, 0, 1),
    Sketcher.Constraint("Equal", 0, 2),
    Sketcher.Constraint("Radius", 3, 85.0),
    Sketcher.Constraint("Angle", 0, Q("42 deg")),
    Sketcher.Constraint("Angle", 1, Q("162 deg")),
    Sketcher.Constraint("Angle", 2, Q("-78 deg")),
    Sketcher.Constraint("DistanceY", 3, 3, 1, 2, 94.569598),
    Sketcher.Constraint("DistanceX", -1, 1, 3, 3, 0.173681),
    Sketcher.Constraint("DistanceY", 3, 3, -1, 1, 0.239051),
    Sketcher.Constraint("DistanceX", -1, 1, 2, 2, 21.63936),
])
sketch22.setExpression("Constraints[5]", "Params.sketch22_radius")
pad22 = body21.newObject("PartDesign::Pad", "Pad021")
pad22.Profile = sketch22
pad22.setExpression("Length", "Params.pad22_length")
doc.recompute()

boolean = body.newObject("PartDesign::Boolean", "Boolean")
boolean.Type = "Cut"
boolean.addObjects([body2])
doc.recompute()

boolean2 = body.newObject("PartDesign::Boolean", "Boolean001")
boolean2.Type = "Cut"
boolean2.addObjects([body3])
doc.recompute()

boolean3 = body.newObject("PartDesign::Boolean", "Boolean002")
boolean3.Type = "Cut"
boolean3.addObjects([body4])
doc.recompute()

boolean4 = body.newObject("PartDesign::Boolean", "Boolean003")
boolean4.Type = "Cut"
boolean4.addObjects([body5])
doc.recompute()

boolean5 = body.newObject("PartDesign::Boolean", "Boolean004")
boolean5.Type = "Cut"
boolean5.addObjects([body6])
doc.recompute()

boolean6 = body.newObject("PartDesign::Boolean", "Boolean005")
boolean6.Type = "Cut"
boolean6.addObjects([body7])
doc.recompute()

boolean7 = body.newObject("PartDesign::Boolean", "Boolean006")
boolean7.Type = "Cut"
boolean7.addObjects([body8])
doc.recompute()

boolean8 = body.newObject("PartDesign::Boolean", "Boolean007")
boolean8.Type = "Cut"
boolean8.addObjects([body9])
doc.recompute()

boolean9 = body.newObject("PartDesign::Boolean", "Boolean008")
boolean9.Type = "Cut"
boolean9.addObjects([body10])
doc.recompute()

boolean10 = body.newObject("PartDesign::Boolean", "Boolean009")
boolean10.Type = "Cut"
boolean10.addObjects([body11])
doc.recompute()

boolean11 = body.newObject("PartDesign::Boolean", "Boolean010")
boolean11.Type = "Cut"
boolean11.addObjects([body12])
doc.recompute()

boolean12 = body.newObject("PartDesign::Boolean", "Boolean011")
boolean12.Type = "Cut"
boolean12.addObjects([body13])
doc.recompute()

boolean13 = body.newObject("PartDesign::Boolean", "Boolean012")
boolean13.Type = "Cut"
boolean13.addObjects([body14])
doc.recompute()

boolean14 = body.newObject("PartDesign::Boolean", "Boolean013")
boolean14.Type = "Cut"
boolean14.addObjects([body15])
doc.recompute()

boolean15 = body.newObject("PartDesign::Boolean", "Boolean014")
boolean15.Type = "Cut"
boolean15.addObjects([body16])
doc.recompute()

boolean16 = body.newObject("PartDesign::Boolean", "Boolean015")
boolean16.Type = "Cut"
boolean16.addObjects([body17])
doc.recompute()

boolean17 = body.newObject("PartDesign::Boolean", "Boolean016")
boolean17.Type = "Cut"
boolean17.addObjects([body18])
doc.recompute()

boolean18 = body.newObject("PartDesign::Boolean", "Boolean017")
boolean18.Type = "Cut"
boolean18.addObjects([body19])
doc.recompute()

boolean19 = body.newObject("PartDesign::Boolean", "Boolean018")
boolean19.Type = "Cut"
boolean19.addObjects([body20])
doc.recompute()

boolean20 = body.newObject("PartDesign::Boolean", "Boolean019")
boolean20.Type = "Cut"
boolean20.addObjects([body21])
doc.recompute()

fillet = body.newObject("PartDesign::Fillet", "Fillet")
fillet.Base = (boolean20, edges_at(boolean20, [
    (364, -9.701, 92.995),
    (364, -19.8, 91.379),
    (364, -21.705, 82.419),
    (364, -37.994, 85.432),
    (364, -47.277, 80.667),
    (364, -46.35, 71.851),
    (364, -54.44, 65.973),
    (364, -62.485, 69.555),
    (364, -69.998, 61.988),
    (364, -66.524, 54.185),
    (364, -72.402, 46.095),
    (364, -80.839, 46.982),
    (364, -85.754, 37.262),
    (364, -91.35, 19.937),
    (364, -93.069, 8.972),
    (364, -93.069, -8.972),
    (364, -80.251, 31.15),
    (364, -83.341, 21.639),
    (364, -86.188, 5),
    (364, -86.188, -5),
    (364, -91.314, -20.098),
    (364, -83.754, -21.705),
    (364, -80.664, -31.215),
    (364, -85.869, -36.996),
    (364, -80.744, -47.145),
    (364, -73.187, -46.35),
    (364, -67.309, -54.44),
    (364, -70.444, -61.481),
    (364, -62.433, -69.601),
    (364, -55.521, -66.524),
    (364, -47.431, -72.402),
    (364, -48.239, -80.095),
    (364, -32.486, -80.251),
    (364, -22.975, -83.341),
    (364, -21.34, -91.032),
    (364, -10.233, -92.938),
    (364, -6.336, -86.188),
    (364, 3.664, -86.188),
    (364, 7.702, -93.182),
    (364, 18.699, -91.611),
    (364, 20.369, -83.754),
    (364, 29.88, -80.664),
    (364, 36.089, -86.255),
    (364, 45.885, -81.467),
    (364, 45.015, -73.187),
    (364, 53.105, -67.309),
    (364, 61.028, -70.837),
    (364, 68.705, -63.419),
    (364, 65.188, -55.521),
    (364, 71.066, -47.431),
    (364, 80.015, -48.371),
    (364, 84.911, -39.145),
    (364, 78.916, -32.486),
    (364, 82.006, -22.975),
    (364, 91.102, -21.042),
    (364, 92.856, -10.956),
    (364, 84.853, -6.336),
    (364, 84.853, 3.664),
    (364, 93.119, 8.437),
    (364, 91.671, 18.402),
    (364, 82.419, 20.369),
    (364, 79.328, 29.88),
    (364, 85.826, 37.096),
    (364, 81.392, 46.017),
    (364, 71.851, 45.015),
    (364, 65.973, 53.105),
    (364, 69.952, 62.04),
    (364, 62.982, 69.105),
    (364, 54.185, 65.188),
    (364, 46.095, 71.066),
    (364, 47.114, 80.762),
    (364, 38.257, 85.315),
    (364, 31.15, 78.916),
    (364, 21.639, 82.006),
    (364, 19.64, 91.414),
    (364, 9.701, 92.995),
    (364, -31.215, 79.328),
]))
fillet.setExpression("Radius", "Params.fillet_radius")

doc.recompute()
